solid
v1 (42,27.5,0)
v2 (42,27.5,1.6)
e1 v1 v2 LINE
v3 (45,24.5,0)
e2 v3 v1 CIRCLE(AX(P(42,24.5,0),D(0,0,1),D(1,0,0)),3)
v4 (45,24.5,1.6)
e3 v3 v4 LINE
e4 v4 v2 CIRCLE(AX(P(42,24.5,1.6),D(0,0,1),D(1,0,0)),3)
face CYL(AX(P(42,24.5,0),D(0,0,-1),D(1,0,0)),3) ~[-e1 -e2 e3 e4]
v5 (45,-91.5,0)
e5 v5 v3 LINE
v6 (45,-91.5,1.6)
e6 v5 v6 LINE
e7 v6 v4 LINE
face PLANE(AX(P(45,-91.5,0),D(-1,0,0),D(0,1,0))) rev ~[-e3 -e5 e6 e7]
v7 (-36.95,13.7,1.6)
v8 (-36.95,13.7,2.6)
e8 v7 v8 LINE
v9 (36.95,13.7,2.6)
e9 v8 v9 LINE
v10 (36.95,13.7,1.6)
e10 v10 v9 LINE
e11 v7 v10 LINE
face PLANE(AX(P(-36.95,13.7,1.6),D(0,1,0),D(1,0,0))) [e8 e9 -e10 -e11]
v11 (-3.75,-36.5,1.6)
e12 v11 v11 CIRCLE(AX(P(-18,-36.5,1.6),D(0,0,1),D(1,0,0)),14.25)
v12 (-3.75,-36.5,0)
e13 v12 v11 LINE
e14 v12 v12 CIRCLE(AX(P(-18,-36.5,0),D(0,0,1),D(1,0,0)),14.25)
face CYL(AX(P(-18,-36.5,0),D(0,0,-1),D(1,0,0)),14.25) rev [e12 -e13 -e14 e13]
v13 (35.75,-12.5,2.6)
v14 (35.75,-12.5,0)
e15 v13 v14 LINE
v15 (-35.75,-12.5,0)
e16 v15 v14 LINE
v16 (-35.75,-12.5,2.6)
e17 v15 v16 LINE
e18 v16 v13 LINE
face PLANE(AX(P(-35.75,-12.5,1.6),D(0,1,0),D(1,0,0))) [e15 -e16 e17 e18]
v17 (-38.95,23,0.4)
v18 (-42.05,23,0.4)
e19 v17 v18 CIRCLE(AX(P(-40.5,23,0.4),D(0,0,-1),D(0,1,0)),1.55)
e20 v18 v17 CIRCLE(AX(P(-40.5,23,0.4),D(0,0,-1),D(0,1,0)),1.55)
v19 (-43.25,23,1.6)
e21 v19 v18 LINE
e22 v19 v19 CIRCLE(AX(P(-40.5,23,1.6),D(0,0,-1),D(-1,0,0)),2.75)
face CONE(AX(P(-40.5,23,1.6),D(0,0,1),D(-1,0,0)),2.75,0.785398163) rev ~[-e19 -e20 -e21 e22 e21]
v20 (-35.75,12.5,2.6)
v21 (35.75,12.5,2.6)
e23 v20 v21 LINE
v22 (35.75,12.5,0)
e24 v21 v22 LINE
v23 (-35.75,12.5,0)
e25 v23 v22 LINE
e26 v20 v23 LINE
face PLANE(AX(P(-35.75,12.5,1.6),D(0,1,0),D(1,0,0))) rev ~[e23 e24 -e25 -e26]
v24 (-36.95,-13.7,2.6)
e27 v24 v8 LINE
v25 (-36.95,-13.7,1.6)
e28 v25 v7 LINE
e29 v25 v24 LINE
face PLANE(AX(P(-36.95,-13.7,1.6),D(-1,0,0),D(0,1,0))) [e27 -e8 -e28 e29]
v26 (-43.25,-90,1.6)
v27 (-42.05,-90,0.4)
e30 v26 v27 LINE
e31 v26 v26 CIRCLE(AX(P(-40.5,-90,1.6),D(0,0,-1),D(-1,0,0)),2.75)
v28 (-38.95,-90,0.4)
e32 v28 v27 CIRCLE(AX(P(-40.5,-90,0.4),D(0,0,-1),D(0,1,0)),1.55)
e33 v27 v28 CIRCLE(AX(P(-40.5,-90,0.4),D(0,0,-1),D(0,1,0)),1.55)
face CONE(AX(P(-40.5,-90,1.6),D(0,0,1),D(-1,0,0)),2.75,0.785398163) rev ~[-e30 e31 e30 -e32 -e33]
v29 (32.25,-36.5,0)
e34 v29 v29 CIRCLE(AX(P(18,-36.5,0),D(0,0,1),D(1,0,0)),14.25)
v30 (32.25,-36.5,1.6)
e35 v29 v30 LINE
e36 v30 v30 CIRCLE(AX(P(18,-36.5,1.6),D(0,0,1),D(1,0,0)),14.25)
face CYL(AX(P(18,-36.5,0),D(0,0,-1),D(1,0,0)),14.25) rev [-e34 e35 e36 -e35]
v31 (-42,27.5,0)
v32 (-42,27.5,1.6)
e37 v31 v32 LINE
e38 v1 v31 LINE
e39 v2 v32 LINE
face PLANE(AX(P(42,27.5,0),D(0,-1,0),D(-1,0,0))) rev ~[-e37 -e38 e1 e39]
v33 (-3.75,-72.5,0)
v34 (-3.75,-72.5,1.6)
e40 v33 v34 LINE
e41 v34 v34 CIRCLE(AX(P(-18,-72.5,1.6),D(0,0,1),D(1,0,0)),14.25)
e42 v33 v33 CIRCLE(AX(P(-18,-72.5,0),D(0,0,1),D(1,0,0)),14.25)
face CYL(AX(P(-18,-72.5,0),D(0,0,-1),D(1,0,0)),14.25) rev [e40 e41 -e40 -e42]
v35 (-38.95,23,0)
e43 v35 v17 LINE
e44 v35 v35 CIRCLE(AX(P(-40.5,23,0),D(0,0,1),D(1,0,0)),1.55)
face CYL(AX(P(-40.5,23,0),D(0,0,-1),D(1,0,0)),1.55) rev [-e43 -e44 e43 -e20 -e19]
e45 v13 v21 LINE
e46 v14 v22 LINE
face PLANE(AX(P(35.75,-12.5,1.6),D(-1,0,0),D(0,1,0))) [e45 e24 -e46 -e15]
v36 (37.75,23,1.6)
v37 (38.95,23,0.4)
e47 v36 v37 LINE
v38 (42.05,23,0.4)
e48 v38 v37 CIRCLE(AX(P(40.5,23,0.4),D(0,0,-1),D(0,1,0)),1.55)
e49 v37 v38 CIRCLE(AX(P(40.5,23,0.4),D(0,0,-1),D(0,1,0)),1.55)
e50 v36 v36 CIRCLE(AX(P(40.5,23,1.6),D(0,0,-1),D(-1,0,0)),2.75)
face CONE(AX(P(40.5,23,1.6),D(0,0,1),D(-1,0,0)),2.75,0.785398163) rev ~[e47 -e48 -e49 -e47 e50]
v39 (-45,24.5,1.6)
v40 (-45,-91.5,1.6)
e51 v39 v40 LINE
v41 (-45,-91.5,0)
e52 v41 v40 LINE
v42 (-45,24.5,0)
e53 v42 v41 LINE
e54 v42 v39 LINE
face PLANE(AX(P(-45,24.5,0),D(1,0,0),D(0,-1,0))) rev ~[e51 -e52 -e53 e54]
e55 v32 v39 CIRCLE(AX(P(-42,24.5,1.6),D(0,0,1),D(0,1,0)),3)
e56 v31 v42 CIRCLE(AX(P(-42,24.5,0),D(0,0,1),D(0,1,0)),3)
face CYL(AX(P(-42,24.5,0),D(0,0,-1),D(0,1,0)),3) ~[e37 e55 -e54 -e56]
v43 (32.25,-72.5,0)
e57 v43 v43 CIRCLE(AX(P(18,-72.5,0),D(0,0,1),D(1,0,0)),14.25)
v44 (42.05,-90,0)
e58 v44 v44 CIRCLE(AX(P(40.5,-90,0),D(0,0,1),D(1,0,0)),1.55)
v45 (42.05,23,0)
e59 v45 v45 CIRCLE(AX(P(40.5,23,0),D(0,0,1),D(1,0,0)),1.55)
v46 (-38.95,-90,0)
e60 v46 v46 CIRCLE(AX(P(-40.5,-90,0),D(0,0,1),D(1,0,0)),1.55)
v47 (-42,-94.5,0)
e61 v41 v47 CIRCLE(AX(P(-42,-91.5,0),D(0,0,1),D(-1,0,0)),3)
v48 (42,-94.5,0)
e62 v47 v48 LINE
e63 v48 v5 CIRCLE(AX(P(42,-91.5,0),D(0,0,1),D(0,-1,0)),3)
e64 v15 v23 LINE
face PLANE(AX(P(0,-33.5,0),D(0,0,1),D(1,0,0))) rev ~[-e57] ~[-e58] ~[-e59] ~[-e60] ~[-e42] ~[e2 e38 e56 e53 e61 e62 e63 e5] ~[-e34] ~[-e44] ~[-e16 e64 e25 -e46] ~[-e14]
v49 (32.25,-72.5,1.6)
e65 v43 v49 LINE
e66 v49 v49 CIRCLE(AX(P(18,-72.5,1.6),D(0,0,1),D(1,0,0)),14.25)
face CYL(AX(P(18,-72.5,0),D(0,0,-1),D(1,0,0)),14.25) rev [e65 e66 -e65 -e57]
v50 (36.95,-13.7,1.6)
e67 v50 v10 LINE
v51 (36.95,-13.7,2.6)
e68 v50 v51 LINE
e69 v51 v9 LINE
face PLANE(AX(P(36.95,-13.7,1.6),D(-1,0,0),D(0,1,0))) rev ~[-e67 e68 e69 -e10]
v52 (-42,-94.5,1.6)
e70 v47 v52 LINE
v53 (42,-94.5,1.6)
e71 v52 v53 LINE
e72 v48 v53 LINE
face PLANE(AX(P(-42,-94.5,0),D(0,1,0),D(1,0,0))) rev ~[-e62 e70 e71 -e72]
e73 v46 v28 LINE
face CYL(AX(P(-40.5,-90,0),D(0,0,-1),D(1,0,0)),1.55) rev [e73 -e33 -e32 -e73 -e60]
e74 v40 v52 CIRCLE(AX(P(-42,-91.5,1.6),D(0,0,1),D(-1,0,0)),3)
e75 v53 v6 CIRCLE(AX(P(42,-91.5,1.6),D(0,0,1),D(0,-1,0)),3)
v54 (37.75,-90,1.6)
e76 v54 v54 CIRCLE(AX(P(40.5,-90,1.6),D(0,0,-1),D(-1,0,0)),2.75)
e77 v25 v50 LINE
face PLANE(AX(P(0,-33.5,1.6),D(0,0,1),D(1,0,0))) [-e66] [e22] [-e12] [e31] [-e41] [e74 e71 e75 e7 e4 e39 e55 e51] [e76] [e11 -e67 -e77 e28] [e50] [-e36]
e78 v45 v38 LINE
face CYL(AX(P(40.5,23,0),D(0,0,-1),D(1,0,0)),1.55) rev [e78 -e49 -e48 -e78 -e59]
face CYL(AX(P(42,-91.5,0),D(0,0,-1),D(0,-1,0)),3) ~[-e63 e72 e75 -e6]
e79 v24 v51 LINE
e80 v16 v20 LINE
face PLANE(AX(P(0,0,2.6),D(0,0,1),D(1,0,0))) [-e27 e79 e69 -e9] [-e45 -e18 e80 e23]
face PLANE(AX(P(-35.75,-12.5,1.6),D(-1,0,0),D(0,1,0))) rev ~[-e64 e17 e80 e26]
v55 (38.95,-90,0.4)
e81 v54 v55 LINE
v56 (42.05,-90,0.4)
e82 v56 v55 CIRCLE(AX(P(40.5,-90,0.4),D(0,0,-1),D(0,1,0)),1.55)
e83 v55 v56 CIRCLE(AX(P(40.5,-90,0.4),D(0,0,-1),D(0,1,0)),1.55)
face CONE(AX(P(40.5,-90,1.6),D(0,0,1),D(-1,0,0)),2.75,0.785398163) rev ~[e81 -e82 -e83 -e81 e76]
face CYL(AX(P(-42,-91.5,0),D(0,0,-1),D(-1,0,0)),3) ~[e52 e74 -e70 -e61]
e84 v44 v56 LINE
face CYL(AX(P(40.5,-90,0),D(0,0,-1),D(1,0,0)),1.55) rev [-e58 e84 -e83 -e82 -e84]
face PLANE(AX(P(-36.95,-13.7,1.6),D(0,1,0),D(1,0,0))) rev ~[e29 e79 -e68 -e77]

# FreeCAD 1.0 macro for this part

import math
import FreeCAD as App
import Part
import Sketcher

V = App.Vector

doc = App.newDocument("Part")
body = doc.addObject("PartDesign::Body", "Body")

# Sketch on XY plane
sketch1 = body.newObject("Sketcher::SketchObject", "Sketch")
sketch1.AttachmentSupport = (doc.getObject("XY_Plane"), [""])
sketch1.MapMode = "FlatFace"
sketch1.addGeometry([
    Part.LineSegment(V(-42, -94.5, 0), V(42, -94.5, 0)),  # 0
    Part.ArcOfCircle(Part.Circle(V(42, -91.5, 0), V(0, 0, 1), 3), math.radians(-90), math.radians(0)),  # 1
    Part.LineSegment(V(45, -91.5, 0), V(45, 24.5, 0)),  # 2
    Part.ArcOfCircle(Part.Circle(V(42, 24.5, 0), V(0, 0, 1), 3), math.radians(0), math.radians(90)),  # 3
    Part.LineSegment(V(42, 27.5, 0), V(-42, 27.5, 0)),  # 4
    Part.ArcOfCircle(Part.Circle(V(-42, 24.5, 0), V(0, 0, 1), 3), math.radians(90), math.radians(180)),  # 5
    Part.LineSegment(V(-45, 24.5, 0), V(-45, -91.5, 0)),  # 6
    Part.ArcOfCircle(Part.Circle(V(-42, -91.5, 0), V(0, 0, 1), 3), math.radians(180), math.radians(270)),  # 7
    Part.Circle(V(-40.5, -90, 0), V(0, 0, 1), 1.6),  # 8
    Part.Circle(V(-18, -72.5, 0), V(0, 0, 1), 14.2),  # 9
    Part.Circle(V(-18, -36.5, 0), V(0, 0, 1), 14.2),  # 10
    Part.Circle(V(18, -72.5, 0), V(0, 0, 1), 14.2),  # 11
    Part.Circle(V(40.5, -90, 0), V(0, 0, 1), 1.6),  # 12
    Part.Circle(V(18, -36.5, 0), V(0, 0, 1), 14.2),  # 13
    Part.Circle(V(-40.5, 23, 0), V(0, 0, 1), 1.6),  # 14
    Part.LineSegment(V(35.8, -12.5, 0), V(-35.8, -12.5, 0)),  # 15
    Part.LineSegment(V(-35.8, -12.5, 0), V(-35.8, 12.5, 0)),  # 16
    Part.LineSegment(V(-35.8, 12.5, 0), V(35.8, 12.5, 0)),  # 17
    Part.LineSegment(V(35.8, 12.5, 0), V(35.8, -12.5, 0)),  # 18
    Part.Circle(V(40.5, 23, 0), V(0, 0, 1), 1.6),  # 19
], False)
sketch1.addConstraint([
    Sketcher.Constraint("Tangent", 0, 2, 1, 1),
    Sketcher.Constraint("Tangent", 1, 2, 2, 1),
    Sketcher.Constraint("Tangent", 2, 2, 3, 1),
    Sketcher.Constraint("Tangent", 3, 2, 4, 1),
    Sketcher.Constraint("Tangent", 4, 2, 5, 1),
    Sketcher.Constraint("Tangent", 5, 2, 6, 1),
    Sketcher.Constraint("Tangent", 6, 2, 7, 1),
    Sketcher.Constraint("Tangent", 7, 2, 0, 1),
    Sketcher.Constraint("Coincident", 15, 2, 16, 1),
    Sketcher.Constraint("Coincident", 16, 2, 17, 1),
    Sketcher.Constraint("Coincident", 17, 2, 18, 1),
    Sketcher.Constraint("Coincident", 18, 2, 15, 1),
    Sketcher.Constraint("Horizontal", 0),
    Sketcher.Constraint("Vertical", 2),
    Sketcher.Constraint("Horizontal", 4),
    Sketcher.Constraint("Vertical", 6),
    Sketcher.Constraint("Horizontal", 15),
    Sketcher.Constraint("Vertical", 16),
    Sketcher.Constraint("Horizontal", 17),
    Sketcher.Constraint("Vertical", 18),
    Sketcher.Constraint("Equal", 1, 3),
    Sketcher.Constraint("Equal", 3, 5),
    Sketcher.Constraint("Equal", 5, 7),
    Sketcher.Constraint("Equal", 9, 10),
    Sketcher.Constraint("Equal", 10, 11),
    Sketcher.Constraint("Equal", 8, 12),
    Sketcher.Constraint("Equal", 11, 13),
    Sketcher.Constraint("Equal", 12, 14),
    Sketcher.Constraint("Equal", 14, 19),
    Sketcher.Constraint("Symmetric", 15, 2, 17, 2, -1, 1),
    Sketcher.Constraint("Symmetric", 9, 3, 11, 3, -2),
    Sketcher.Constraint("Symmetric", 8, 3, 12, 3, -2),
    Sketcher.Constraint("Symmetric", 10, 3, 13, 3, -2),
    Sketcher.Constraint("Symmetric", 14, 3, 19, 3, -2),
    Sketcher.Constraint("Vertical", 9, 3, 10, 3),
    Sketcher.Constraint("Vertical", 8, 3, 14, 3),
    Sketcher.Constraint("Radius", 1, 3.0),
    Sketcher.Constraint("Diameter", 8, 3.1),
    Sketcher.Constraint("Diameter", 9, 28.5),
    Sketcher.Constraint("DistanceX", 0, 1, 0, 2, 84.0),
    Sketcher.Constraint("DistanceY", 2, 1, 2, 2, 116.0),
    Sketcher.Constraint("DistanceY", 16, 1, 16, 2, 25.0),
    Sketcher.Constraint("DistanceX", 15, 2, 15, 1, 71.5),
    Sketcher.Constraint("DistanceX", -1, 1, 1, 3, 42.0),
    Sketcher.Constraint("DistanceY", 8, 3, -1, 1, 90.0),
    Sketcher.Constraint("DistanceX", 9, 3, -1, 1, 18.0),
    Sketcher.Constraint("DistanceY", -1, 1, 14, 3, 23.0),
    Sketcher.Constraint("DistanceY", 7, 3, 9, 3, 19.0),
    Sketcher.Constraint("DistanceY", 9, 3, 10, 3, 36.0),
    Sketcher.Constraint("DistanceX", 8, 3, 12, 3, 81.0),
    Sketcher.Constraint("DistanceY", 10, 3, 15, 2, 24.0),
])
pad1 = body.newObject("PartDesign::Pad", "Pad")
pad1.Profile = sketch1
pad1.Length = 1.6

# Sketch on XY plane
sketch2 = body.newObject("Sketcher::SketchObject", "Sketch001")
sketch2.AttachmentSupport = (doc.getObject("XY_Plane"), [""])
sketch2.MapMode = "FlatFace"
sketch2.AttachmentOffset = App.Placement(V(0, 0, 1.6), App.Rotation())
sketch2.addGeometry([
    Part.LineSegment(V(-37, 14, 0), V(-37, -14, 0)),  # 0
    Part.LineSegment(V(-37, -14, 0), V(37, -14, 0)),  # 1
    Part.LineSegment(V(37, -14, 0), V(37, 14, 0)),  # 2
    Part.LineSegment(V(37, 14, 0), V(-37, 14, 0)),  # 3
    Part.LineSegment(V(36, -12, 0), V(-36, -12, 0)),  # 4
    Part.LineSegment(V(-36, -12, 0), V(-36, 12, 0)),  # 5
    Part.LineSegment(V(-36, 12, 0), V(36, 12, 0)),  # 6
    Part.LineSegment(V(36, 12, 0), V(36, -12, 0)),  # 7
], False)
sketch2.addConstraint([
    Sketcher.Constraint("Coincident", 0, 2, 1, 1),
    Sketcher.Constraint("Coincident", 1, 2, 2, 1),
    Sketcher.Constraint("Coincident", 2, 2, 3, 1),
    Sketcher.Constraint("Coincident", 3, 2, 0, 1),
    Sketcher.Constraint("Coincident", 4, 2, 5, 1),
    Sketcher.Constraint("Coincident", 5, 2, 6, 1),
    Sketcher.Constraint("Coincident", 6, 2, 7, 1),
    Sketcher.Constraint("Coincident", 7, 2, 4, 1),
    Sketcher.Constraint("Vertical", 0),
    Sketcher.Constraint("Horizontal", 1),
    Sketcher.Constraint("Vertical", 2),
    Sketcher.Constraint("Horizontal", 3),
    Sketcher.Constraint("Horizontal", 4),
    Sketcher.Constraint("Vertical", 5),
    Sketcher.Constraint("Horizontal", 6),
    Sketcher.Constraint("Vertical", 7),
    Sketcher.Constraint("Symmetric", 0, 2, 2, 2, -1, 1),
    Sketcher.Constraint("Symmetric", 4, 2, 6, 2, -1, 1),
    Sketcher.Constraint("DistanceY", 5, 1, 5, 2, 25.0),
    Sketcher.Constraint("DistanceX", 1, 1, 1, 2, 73.9),
    Sketcher.Constraint("DistanceX", 4, 2, 4, 1, 71.5),
    Sketcher.Constraint("DistanceY", 0, 2, 0, 1, 27.4),
])
pad2 = body.newObject("PartDesign::Pad", "Pad001")
pad2.Profile = sketch2
pad2.Length = 1

# Sketch on XY plane
sketch3 = body.newObject("Sketcher::SketchObject", "Sketch002")
sketch3.AttachmentSupport = (doc.getObject("XY_Plane"), [""])
sketch3.MapMode = "FlatFace"
sketch3.AttachmentOffset = App.Placement(V(0, 0, 1.6), App.Rotation())
sketch3.addGeometry([
    Part.Circle(V(-40.5, 23, 0), V(0, 0, 1), 1.6),
    Part.Circle(V(40.5, 23, 0), V(0, 0, 1), 1.6),
    Part.Circle(V(-40.5, -90, 0), V(0, 0, 1), 1.6),
    Part.Circle(V(40.5, -90, 0), V(0, 0, 1), 1.6),
], False)
sketch3.addConstraint([
    Sketcher.Constraint("Equal", 0, 1),
    Sketcher.Constraint("Equal", 1, 2),
    Sketcher.Constraint("Equal", 2, 3),
    Sketcher.Constraint("Symmetric", 0, 3, 1, 3, -2),
    Sketcher.Constraint("Symmetric", 2, 3, 3, 3, -2),
    Sketcher.Constraint("Vertical", 0, 3, 2, 3),
    Sketcher.Constraint("Diameter", 0, 3.1),
    Sketcher.Constraint("DistanceY", -1, 1, 0, 3, 23.0),
    Sketcher.Constraint("DistanceY", 2, 3, -1, 1, 90.0),
    Sketcher.Constraint("DistanceX", 0, 3, 1, 3, 81.0),
])
doc.recompute()
hole = body.newObject("PartDesign::Hole", "Hole")
hole.Profile = sketch3
hole.ThreadType = "None"
hole.Diameter = 3.1
hole.DepthType = "ThroughAll"
hole.HoleCutType = "Countersink"
hole.HoleCutDiameter = 5.5
hole.HoleCutCountersinkAngle = 90

doc.recompute()
